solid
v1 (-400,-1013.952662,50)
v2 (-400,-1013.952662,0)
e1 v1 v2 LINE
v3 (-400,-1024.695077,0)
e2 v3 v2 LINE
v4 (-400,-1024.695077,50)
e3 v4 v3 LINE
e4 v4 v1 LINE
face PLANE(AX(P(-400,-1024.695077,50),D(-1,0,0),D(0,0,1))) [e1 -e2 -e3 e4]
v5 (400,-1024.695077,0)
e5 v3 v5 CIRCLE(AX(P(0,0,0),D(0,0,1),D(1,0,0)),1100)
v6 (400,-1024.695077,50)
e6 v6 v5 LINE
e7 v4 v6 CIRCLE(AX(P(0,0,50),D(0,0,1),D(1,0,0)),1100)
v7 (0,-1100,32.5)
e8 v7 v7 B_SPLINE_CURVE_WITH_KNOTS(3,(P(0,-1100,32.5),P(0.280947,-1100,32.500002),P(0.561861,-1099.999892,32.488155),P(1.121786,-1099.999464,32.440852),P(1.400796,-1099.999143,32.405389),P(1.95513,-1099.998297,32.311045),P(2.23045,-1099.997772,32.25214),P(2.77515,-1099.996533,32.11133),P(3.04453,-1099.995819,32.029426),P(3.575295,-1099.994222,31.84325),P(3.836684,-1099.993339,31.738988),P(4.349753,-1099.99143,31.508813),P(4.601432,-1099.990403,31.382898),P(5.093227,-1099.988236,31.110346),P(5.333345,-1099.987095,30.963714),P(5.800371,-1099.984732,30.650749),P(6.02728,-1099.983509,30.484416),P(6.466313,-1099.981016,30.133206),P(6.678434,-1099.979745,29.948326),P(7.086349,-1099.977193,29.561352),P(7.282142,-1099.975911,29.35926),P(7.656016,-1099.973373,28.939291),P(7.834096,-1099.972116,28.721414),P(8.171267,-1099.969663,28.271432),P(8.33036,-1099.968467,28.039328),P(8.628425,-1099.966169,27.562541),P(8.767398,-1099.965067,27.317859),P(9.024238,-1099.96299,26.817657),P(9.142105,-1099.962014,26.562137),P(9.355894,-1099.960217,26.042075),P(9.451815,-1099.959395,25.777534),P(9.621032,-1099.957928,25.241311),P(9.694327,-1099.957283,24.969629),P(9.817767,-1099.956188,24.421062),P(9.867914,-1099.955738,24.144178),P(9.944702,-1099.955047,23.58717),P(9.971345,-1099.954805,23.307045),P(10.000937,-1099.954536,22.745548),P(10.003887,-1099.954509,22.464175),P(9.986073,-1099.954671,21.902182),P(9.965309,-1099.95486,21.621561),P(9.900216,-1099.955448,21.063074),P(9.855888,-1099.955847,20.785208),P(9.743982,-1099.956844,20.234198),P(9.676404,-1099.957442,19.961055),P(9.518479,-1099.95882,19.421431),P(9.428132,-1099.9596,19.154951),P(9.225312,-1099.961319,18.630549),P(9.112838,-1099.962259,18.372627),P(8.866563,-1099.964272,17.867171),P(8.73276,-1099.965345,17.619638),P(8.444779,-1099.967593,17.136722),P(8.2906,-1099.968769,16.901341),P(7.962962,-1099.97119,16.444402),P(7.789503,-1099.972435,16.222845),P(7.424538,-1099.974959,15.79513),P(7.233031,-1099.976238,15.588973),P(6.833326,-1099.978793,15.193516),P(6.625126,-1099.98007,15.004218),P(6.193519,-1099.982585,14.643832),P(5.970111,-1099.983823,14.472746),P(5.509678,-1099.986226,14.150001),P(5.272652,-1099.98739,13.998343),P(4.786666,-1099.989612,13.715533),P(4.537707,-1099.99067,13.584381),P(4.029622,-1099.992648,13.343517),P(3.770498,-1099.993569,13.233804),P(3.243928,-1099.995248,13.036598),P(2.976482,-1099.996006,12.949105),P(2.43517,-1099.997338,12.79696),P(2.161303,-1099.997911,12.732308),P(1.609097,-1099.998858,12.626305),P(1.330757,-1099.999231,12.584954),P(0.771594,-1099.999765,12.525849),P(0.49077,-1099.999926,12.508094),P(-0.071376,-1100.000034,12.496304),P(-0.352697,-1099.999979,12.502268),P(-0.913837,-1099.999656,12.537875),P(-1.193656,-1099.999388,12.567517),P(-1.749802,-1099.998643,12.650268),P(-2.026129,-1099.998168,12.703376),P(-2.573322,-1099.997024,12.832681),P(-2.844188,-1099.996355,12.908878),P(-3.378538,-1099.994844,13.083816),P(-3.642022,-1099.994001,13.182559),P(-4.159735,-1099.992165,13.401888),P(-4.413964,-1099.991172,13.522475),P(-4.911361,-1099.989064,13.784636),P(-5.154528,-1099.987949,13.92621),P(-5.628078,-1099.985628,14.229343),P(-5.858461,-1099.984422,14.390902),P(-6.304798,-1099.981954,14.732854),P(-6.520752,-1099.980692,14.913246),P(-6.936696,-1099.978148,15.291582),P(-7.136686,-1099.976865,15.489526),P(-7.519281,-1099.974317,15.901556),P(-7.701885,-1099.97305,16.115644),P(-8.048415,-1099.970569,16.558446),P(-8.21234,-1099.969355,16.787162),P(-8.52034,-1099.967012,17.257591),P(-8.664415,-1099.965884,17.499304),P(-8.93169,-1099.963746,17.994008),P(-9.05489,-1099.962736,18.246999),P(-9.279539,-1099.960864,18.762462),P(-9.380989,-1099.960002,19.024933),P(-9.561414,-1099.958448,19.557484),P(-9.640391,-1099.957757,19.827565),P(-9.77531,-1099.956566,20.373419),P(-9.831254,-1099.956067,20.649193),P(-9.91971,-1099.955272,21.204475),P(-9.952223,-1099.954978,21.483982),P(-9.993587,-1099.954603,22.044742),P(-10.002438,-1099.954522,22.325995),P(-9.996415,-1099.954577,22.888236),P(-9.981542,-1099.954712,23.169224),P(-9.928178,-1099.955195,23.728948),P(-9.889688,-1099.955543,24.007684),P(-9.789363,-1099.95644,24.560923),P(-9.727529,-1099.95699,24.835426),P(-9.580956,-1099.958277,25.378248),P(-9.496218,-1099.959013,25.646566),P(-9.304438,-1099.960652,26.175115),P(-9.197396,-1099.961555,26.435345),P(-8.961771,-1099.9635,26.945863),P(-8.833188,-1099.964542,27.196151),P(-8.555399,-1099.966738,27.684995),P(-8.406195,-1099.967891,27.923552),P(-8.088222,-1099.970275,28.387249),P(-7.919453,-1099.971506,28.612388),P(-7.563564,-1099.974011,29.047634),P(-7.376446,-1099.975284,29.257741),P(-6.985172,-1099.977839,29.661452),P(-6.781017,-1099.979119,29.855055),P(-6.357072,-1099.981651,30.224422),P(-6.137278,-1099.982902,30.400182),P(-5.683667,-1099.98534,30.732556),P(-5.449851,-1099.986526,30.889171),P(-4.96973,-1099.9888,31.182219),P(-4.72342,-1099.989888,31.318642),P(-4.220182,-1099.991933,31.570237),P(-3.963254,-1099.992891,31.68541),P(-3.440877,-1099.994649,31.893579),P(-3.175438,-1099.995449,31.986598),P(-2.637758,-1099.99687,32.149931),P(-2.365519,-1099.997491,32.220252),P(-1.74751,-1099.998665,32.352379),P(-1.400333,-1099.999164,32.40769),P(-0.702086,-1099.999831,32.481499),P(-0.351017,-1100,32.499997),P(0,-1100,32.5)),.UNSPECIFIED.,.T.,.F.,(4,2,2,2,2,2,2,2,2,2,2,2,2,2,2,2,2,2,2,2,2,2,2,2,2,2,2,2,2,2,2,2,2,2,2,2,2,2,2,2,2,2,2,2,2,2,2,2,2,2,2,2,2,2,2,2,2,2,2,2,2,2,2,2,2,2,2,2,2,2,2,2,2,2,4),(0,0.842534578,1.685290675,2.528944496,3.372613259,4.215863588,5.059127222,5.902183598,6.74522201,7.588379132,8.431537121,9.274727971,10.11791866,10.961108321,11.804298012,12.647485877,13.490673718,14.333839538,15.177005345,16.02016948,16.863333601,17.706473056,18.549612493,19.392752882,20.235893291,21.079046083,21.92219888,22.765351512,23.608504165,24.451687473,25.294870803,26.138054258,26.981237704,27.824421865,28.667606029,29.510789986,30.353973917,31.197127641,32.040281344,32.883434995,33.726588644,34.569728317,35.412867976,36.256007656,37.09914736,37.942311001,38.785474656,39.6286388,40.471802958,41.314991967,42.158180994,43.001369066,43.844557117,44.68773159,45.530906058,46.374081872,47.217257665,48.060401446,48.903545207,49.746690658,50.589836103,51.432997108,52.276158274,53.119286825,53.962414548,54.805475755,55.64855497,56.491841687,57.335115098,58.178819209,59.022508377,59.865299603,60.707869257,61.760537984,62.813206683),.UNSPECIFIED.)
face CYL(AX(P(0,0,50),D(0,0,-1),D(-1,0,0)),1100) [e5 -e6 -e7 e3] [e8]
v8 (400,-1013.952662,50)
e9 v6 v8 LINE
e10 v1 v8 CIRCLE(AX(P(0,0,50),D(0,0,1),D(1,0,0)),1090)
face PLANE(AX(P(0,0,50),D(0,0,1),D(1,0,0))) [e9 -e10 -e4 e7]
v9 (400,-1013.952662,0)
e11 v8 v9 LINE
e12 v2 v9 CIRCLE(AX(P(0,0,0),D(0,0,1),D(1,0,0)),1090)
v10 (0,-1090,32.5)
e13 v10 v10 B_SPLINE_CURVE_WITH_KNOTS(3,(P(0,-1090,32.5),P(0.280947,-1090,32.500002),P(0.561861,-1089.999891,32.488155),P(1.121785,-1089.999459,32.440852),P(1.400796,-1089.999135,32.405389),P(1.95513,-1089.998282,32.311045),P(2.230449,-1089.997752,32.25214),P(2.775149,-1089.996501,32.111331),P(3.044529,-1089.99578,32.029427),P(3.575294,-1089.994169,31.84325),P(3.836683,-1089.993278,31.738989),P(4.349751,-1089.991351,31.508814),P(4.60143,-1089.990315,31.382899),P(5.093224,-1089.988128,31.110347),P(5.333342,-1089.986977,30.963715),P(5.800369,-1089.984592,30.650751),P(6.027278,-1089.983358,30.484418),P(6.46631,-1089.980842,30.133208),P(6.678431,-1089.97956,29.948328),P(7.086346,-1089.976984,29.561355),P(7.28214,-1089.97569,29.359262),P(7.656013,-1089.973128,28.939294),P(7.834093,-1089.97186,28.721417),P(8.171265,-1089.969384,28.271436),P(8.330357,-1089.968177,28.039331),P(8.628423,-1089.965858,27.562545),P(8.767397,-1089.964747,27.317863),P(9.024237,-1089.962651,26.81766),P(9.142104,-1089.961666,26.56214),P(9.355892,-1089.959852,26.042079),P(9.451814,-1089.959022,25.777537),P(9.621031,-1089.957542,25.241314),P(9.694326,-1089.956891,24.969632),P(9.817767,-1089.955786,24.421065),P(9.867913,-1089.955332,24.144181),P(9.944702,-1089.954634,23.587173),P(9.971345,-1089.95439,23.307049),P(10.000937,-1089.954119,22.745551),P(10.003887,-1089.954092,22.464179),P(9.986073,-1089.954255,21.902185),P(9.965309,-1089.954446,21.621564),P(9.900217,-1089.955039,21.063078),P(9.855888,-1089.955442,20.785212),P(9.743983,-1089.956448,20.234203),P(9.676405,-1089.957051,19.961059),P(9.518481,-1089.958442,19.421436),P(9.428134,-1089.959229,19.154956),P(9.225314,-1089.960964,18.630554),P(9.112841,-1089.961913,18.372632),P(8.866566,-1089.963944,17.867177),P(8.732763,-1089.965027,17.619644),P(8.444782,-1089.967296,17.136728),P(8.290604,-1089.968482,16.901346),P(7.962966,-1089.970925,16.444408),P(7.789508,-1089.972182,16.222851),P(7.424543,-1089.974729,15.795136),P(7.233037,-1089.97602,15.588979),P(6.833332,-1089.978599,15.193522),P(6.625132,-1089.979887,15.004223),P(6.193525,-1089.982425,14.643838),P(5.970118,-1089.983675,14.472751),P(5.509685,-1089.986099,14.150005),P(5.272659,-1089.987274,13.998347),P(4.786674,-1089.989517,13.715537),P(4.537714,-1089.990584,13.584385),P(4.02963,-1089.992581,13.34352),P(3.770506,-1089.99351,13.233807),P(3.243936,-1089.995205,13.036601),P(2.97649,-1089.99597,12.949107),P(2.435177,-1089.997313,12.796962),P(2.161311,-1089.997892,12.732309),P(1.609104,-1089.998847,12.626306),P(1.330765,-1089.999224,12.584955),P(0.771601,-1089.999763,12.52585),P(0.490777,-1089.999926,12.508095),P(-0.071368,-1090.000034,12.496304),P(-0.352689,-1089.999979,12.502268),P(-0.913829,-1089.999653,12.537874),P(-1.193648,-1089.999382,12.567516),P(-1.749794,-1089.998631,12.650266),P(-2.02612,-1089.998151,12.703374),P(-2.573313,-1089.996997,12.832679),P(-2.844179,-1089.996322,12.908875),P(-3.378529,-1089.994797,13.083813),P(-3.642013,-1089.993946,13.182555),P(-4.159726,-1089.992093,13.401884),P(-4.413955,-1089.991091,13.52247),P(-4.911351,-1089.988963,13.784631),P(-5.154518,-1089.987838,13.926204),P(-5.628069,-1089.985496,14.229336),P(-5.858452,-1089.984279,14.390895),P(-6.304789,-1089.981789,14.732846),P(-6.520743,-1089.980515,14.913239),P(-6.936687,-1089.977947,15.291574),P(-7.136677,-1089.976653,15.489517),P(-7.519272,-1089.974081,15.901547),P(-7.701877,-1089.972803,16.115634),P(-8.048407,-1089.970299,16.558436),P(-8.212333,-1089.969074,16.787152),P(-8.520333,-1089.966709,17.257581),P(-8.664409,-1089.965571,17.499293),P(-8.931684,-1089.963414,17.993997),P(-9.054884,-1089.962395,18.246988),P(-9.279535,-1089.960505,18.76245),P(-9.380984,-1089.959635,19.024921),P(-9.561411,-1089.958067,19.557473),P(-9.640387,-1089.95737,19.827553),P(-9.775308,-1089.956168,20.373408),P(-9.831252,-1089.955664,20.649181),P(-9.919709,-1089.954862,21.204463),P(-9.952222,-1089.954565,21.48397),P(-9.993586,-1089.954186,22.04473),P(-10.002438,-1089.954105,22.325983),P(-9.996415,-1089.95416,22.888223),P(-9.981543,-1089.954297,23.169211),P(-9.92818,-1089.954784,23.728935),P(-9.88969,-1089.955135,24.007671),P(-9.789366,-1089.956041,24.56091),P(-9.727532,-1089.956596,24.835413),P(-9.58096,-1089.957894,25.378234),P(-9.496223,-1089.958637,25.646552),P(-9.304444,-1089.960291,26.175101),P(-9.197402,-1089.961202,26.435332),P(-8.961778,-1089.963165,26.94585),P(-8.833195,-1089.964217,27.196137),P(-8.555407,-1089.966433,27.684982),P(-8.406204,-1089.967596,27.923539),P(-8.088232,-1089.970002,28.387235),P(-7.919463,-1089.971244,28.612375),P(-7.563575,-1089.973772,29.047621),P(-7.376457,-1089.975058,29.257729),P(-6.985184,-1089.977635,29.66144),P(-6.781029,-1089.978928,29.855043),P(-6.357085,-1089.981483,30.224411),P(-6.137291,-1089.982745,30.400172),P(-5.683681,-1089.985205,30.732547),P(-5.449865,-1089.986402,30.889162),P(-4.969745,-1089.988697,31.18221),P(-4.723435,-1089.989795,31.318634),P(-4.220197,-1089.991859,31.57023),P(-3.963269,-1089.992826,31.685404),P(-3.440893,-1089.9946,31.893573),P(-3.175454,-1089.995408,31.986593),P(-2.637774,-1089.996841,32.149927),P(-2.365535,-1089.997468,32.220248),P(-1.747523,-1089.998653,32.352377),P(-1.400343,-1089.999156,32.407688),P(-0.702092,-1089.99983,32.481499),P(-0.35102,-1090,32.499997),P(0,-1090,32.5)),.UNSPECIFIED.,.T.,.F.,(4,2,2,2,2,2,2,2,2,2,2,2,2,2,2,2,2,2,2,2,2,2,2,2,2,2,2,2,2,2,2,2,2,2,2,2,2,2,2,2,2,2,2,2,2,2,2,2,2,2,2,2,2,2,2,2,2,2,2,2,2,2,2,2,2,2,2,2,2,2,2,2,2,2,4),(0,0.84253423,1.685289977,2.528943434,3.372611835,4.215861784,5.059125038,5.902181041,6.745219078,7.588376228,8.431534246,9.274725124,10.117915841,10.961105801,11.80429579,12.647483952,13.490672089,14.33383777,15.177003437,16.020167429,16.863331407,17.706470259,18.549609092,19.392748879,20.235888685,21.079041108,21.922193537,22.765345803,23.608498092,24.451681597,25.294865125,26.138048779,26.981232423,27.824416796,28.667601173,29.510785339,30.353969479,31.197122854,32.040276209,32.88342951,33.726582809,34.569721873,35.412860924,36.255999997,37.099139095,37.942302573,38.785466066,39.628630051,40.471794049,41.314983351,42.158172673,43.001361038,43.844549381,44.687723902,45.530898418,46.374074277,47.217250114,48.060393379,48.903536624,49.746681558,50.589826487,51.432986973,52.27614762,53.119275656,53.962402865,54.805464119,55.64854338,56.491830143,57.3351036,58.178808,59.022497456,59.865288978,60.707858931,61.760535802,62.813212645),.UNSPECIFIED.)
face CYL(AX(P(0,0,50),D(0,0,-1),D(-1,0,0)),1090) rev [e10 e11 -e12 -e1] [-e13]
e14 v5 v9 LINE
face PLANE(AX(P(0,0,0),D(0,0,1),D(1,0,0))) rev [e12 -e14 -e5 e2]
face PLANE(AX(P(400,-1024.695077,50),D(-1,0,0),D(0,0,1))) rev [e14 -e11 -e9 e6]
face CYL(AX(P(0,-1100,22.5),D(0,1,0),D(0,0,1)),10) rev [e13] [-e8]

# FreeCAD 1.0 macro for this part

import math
import FreeCAD as App
import Part
import Sketcher
Q = App.Units.Quantity

doc = App.newDocument("Part")
params = doc.addObject("Spreadsheet::Sheet", "Params")
for row, (alias, value) in enumerate([
    ("sketch1_radius", "1100 mm"),
    ("sketch1_radius2", "1090 mm"),
    ("pad1_length", "50 mm"),
    ("sketch2_diameter", "20 mm"),
], start=1):
    params.set(f"A{row}", alias)
    params.set(f"B{row}", "=" + value)
    params.setAlias(f"B{row}", alias)

body = doc.addObject("PartDesign::Body", "Body")

sketch1 = doc.addObject("Sketcher::SketchObject", "Sketch")
body.addObject(sketch1)
sketch1.AttachmentSupport = (doc.XY_Plane, [""])
sketch1.MapMode = "FlatFace"
sketch1.addGeometry(Part.LineSegment(App.Vector(-400, -1014, 0), App.Vector(-400, -1025, 0)), False)
sketch1.addGeometry(Part.ArcOfCircle(Part.Circle(App.Vector(0, 0, 0), App.Vector(0, 0, 1), 1100), math.radians(-111), math.radians(-69)), False)
sketch1.addGeometry(Part.LineSegment(App.Vector(400, -1025, 0), App.Vector(400, -1014, 0)), False)
sketch1.addGeometry(Part.ArcOfCircle(Part.Circle(App.Vector(0, 0, 0), App.Vector(0, 0, 1), 1090), math.radians(-112), math.radians(-68)), False)
sketch1.addConstraint(Sketcher.Constraint("Coincident", 0, 2, 1, 1))
sketch1.addConstraint(Sketcher.Constraint("Coincident", 1, 2, 2, 1))
sketch1.addConstraint(Sketcher.Constraint("Coincident", 2, 2, 3, 2))
sketch1.addConstraint(Sketcher.Constraint("Coincident", 3, 1, 0, 1))
sketch1.addConstraint(Sketcher.Constraint("Vertical", 0))
sketch1.addConstraint(Sketcher.Constraint("Vertical", 2))
sketch1.addConstraint(Sketcher.Constraint("Coincident", 1, 3, -1, 1))
sketch1.addConstraint(Sketcher.Constraint("Coincident", 3, 3, -1, 1))
sketch1.addConstraint(Sketcher.Constraint("Radius", 1, Q("1100 mm")))
sketch1.addConstraint(Sketcher.Constraint("Radius", 3, Q("1090 mm")))
sketch1.addConstraint(Sketcher.Constraint("DistanceX", 0, 2, -1, 1, Q("400 mm")))
sketch1.addConstraint(Sketcher.Constraint("DistanceX", -1, 1, 2, 2, Q("400 mm")))
sketch1.setExpression("Constraints[8]", "Params.sketch1_radius")
sketch1.setExpression("Constraints[9]", "Params.sketch1_radius2")
pad1 = doc.addObject("PartDesign::Pad", "Pad")
body.addObject(pad1)
pad1.Profile = sketch1
pad1.setExpression("Length", "Params.pad1_length")

sketch2 = doc.addObject("Sketcher::SketchObject", "Sketch001")
body.addObject(sketch2)
sketch2.AttachmentSupport = (doc.XZ_Plane, [""])
sketch2.MapMode = "FlatFace"
sketch2.addGeometry(Part.Circle(App.Vector(0, 22, 0), App.Vector(0, 0, 1), 10), False)
sketch2.addConstraint(Sketcher.Constraint("PointOnObject", 0, 3, -2))
sketch2.addConstraint(Sketcher.Constraint("Diameter", 0, Q("20 mm")))
sketch2.addConstraint(Sketcher.Constraint("DistanceY", -1, 1, 0, 3, Q("22.5 mm")))
sketch2.setExpression("Constraints[1]", "Params.sketch2_diameter")
pocket1 = doc.addObject("PartDesign::Pocket", "Pocket")
body.addObject(pocket1)
pocket1.Profile = sketch2
pocket1.Type = "ThroughAll"
pocket1.Reversed = True

doc.recompute()
